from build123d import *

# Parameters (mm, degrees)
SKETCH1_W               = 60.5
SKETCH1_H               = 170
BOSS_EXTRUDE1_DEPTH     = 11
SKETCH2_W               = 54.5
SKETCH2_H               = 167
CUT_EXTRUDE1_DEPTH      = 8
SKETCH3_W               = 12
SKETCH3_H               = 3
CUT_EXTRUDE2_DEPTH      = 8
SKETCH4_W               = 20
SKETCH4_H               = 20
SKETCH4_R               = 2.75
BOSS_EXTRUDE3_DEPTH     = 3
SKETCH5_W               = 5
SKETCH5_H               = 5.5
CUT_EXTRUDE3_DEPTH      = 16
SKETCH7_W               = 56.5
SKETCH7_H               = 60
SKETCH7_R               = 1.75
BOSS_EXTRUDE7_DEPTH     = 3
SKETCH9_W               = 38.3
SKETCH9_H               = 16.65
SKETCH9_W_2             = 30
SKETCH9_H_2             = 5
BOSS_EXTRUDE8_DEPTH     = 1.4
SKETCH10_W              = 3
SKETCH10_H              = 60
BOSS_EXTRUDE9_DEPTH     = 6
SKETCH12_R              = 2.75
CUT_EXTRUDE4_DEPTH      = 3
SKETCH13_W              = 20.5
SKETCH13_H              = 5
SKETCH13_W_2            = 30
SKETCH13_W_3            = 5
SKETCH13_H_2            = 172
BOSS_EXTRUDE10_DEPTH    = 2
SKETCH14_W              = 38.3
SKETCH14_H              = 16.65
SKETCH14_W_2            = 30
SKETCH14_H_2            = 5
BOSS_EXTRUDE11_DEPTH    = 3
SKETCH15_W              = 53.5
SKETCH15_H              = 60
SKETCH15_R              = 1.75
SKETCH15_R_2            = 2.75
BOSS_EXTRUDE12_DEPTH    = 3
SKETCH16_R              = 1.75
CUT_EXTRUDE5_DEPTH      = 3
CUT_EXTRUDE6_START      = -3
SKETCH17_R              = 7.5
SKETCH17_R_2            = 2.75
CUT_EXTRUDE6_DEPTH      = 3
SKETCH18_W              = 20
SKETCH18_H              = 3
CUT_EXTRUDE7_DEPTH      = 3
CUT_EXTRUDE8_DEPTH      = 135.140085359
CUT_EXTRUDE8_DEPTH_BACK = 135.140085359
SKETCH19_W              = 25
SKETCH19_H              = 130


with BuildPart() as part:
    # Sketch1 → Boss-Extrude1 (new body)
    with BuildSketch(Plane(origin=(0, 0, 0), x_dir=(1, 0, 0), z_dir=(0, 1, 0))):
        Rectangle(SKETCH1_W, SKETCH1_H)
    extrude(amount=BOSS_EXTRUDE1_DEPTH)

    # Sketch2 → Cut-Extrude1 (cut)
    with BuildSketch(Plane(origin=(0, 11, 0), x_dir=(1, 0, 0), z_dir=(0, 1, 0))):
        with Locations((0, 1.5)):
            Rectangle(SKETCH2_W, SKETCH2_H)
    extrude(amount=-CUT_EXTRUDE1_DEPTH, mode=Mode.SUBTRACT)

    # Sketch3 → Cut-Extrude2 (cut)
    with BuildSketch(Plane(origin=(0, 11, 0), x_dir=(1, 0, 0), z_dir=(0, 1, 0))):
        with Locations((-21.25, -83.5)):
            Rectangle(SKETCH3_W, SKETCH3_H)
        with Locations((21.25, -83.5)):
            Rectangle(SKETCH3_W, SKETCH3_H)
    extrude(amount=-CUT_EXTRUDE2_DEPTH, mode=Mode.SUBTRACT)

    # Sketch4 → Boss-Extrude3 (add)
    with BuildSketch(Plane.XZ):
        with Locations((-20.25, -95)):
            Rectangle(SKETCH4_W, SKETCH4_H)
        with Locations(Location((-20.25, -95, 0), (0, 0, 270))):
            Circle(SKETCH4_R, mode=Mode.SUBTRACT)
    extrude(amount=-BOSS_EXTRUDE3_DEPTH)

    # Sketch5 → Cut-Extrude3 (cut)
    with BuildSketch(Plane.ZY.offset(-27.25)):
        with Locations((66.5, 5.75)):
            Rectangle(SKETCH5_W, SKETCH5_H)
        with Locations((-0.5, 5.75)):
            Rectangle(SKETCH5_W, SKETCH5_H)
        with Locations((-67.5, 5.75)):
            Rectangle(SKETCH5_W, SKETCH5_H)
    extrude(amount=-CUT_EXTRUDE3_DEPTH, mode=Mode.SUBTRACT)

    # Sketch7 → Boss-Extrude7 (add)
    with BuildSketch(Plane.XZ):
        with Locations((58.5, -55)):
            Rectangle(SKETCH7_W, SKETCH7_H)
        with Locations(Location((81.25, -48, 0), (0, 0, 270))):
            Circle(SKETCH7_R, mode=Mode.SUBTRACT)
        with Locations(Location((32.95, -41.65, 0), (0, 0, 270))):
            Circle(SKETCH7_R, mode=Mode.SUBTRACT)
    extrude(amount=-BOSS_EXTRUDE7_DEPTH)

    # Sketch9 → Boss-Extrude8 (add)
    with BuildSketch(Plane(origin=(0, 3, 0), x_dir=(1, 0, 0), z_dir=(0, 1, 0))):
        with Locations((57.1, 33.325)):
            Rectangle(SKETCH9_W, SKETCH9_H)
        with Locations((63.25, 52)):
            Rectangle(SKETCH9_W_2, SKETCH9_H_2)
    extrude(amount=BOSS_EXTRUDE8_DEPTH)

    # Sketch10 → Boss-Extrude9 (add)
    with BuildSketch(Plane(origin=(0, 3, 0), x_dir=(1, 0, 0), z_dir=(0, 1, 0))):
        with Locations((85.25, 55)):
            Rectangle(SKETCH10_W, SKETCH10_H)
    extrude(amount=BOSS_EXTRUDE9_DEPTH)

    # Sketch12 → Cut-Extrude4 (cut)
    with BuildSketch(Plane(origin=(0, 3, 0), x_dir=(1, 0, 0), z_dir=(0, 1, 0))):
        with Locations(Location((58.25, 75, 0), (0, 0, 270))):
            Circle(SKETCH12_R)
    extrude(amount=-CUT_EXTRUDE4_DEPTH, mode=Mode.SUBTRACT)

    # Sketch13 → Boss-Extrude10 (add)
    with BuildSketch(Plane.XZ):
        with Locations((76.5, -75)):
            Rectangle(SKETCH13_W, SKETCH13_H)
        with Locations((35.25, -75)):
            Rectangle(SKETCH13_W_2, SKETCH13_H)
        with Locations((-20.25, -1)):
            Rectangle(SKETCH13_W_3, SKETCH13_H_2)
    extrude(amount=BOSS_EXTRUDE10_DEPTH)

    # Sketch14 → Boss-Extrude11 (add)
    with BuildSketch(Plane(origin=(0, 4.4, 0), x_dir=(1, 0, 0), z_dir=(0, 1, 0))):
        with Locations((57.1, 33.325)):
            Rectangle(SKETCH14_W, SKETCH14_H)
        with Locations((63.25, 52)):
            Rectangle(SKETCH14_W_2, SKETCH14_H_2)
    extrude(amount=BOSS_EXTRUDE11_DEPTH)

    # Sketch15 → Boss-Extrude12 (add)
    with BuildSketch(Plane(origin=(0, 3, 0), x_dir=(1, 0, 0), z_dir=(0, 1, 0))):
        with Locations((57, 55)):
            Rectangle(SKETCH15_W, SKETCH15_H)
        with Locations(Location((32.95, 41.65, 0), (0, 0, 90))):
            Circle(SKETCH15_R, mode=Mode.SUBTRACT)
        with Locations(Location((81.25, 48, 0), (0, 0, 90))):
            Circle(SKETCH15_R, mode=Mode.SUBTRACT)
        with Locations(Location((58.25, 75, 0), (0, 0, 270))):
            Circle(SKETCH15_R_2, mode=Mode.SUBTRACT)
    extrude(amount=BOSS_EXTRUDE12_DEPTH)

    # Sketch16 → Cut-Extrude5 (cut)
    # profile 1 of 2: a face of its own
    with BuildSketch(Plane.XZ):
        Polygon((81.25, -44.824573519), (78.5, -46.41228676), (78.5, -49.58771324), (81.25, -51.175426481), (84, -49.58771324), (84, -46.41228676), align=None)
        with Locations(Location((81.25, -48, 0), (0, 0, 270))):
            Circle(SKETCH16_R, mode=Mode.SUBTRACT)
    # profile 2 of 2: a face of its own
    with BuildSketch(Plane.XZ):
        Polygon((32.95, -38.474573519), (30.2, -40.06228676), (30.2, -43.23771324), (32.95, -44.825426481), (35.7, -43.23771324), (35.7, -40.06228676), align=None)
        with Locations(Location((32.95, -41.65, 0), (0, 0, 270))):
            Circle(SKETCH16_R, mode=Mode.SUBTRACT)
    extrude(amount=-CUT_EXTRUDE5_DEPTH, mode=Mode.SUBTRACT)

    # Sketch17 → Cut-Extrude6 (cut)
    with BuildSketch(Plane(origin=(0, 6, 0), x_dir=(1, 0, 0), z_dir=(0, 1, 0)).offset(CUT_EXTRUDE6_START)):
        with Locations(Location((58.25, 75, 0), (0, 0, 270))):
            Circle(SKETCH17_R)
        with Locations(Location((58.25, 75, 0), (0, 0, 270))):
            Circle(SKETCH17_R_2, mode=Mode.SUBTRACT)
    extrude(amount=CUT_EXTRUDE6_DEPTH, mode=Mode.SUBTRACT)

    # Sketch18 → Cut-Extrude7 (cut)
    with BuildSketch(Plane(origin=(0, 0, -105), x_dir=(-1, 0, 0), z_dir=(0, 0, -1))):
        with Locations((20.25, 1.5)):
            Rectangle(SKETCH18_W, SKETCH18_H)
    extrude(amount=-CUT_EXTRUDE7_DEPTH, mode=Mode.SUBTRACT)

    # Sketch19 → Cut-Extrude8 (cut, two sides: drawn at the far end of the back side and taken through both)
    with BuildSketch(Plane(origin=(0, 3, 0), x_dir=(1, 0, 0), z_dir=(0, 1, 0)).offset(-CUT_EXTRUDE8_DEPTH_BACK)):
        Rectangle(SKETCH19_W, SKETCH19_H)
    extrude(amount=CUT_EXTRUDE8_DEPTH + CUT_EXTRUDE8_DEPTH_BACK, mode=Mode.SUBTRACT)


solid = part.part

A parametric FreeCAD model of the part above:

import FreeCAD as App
import Part
import Sketcher
Q = App.Units.Quantity


def add_polygon(sketch, points):
    """Adds a closed chain of lines whose ends are joined by coincident constraints."""
    first, n = sketch.GeometryCount, len(points)
    for a, b in zip(points, points[1:] + points[:1]):
        sketch.addGeometry(Part.LineSegment(App.Vector(*a, 0), App.Vector(*b, 0)), False)
    for i in range(n):
        sketch.addConstraint(Sketcher.Constraint("Coincident", first + i, 2, first + (i + 1) % n, 1))

doc = App.newDocument("Part")
body = doc.addObject("PartDesign::Body", "Body")

# Sketch on XZ plane
sketch1 = body.newObject("Sketcher::SketchObject", "Sketch")
sketch1.AttachmentSupport = (doc.getObject("XZ_Plane"), [""])
sketch1.MapMode = "FlatFace"
add_polygon(sketch1, [(-30, -85), (-30, 85), (30, 85), (30, -85)])  # lines 0-3
sketch1.addConstraint([
    Sketcher.Constraint("Vertical", 0),
    Sketcher.Constraint("Horizontal", 1),
    Sketcher.Constraint("Vertical", 2),
    Sketcher.Constraint("Horizontal", 3),
    Sketcher.Constraint("Symmetric", 0, 2, 2, 2, -1, 1),
    Sketcher.Constraint("DistanceY", 0, 1, 0, 2, Q("170 mm")),
    Sketcher.Constraint("DistanceX", 1, 1, 1, 2, Q("60.5 mm")),
])
pad1 = body.newObject("PartDesign::Pad", "Pad")
pad1.Profile = sketch1
pad1.Length = 11
pad1.Reversed = True

# Sketch on XZ plane
sketch2 = body.newObject("Sketcher::SketchObject", "Sketch001")
sketch2.AttachmentSupport = (doc.getObject("XZ_Plane"), [""])
sketch2.MapMode = "FlatFace"
sketch2.AttachmentOffset = App.Placement(App.Vector(0, 0, -11), App.Rotation())
add_polygon(sketch2, [(-27, -85), (-27, 82), (27, 82), (27, -85)])  # lines 0-3
sketch2.addConstraint([
    Sketcher.Constraint("Vertical", 0),
    Sketcher.Constraint("Horizontal", 1),
    Sketcher.Constraint("Vertical", 2),
    Sketcher.Constraint("Horizontal", 3),
    Sketcher.Constraint("DistanceY", 0, 1, 0, 2, Q("167 mm")),
    Sketcher.Constraint("DistanceX", 1, 1, 1, 2, Q("54.5 mm")),
    Sketcher.Constraint("DistanceY", -1, 1, 0, 2, Q("82 mm")),
    Sketcher.Constraint("DistanceX", 0, 2, -1, 1, Q("27.25 mm")),
])
pocket1 = body.newObject("PartDesign::Pocket", "Pocket")
pocket1.Profile = sketch2
pocket1.Length = 8
pocket1.Reversed = True

# Sketch on XZ plane
sketch3 = body.newObject("Sketcher::SketchObject", "Sketch002")
sketch3.AttachmentSupport = (doc.getObject("XZ_Plane"), [""])
sketch3.MapMode = "FlatFace"
sketch3.AttachmentOffset = App.Placement(App.Vector(0, 0, -11), App.Rotation())
add_polygon(sketch3, [(-27.2, 82), (-27.2, 85), (-15.2, 85), (-15.2, 82)])  # lines 0-3
add_polygon(sketch3, [(15.2, 82), (15.2, 85), (27.2, 85), (27.2, 82)])  # lines 4-7
sketch3.addConstraint([
    Sketcher.Constraint("Vertical", 0),
    Sketcher.Constraint("Horizontal", 1),
    Sketcher.Constraint("Vertical", 2),
    Sketcher.Constraint("Horizontal", 3),
    Sketcher.Constraint("Vertical", 4),
    Sketcher.Constraint("Horizontal", 5),
    Sketcher.Constraint("Vertical", 6),
    Sketcher.Constraint("Horizontal", 7),
    Sketcher.Constraint("Symmetric", 1, 2, 4, 2, -2),
    Sketcher.Constraint("Symmetric", 3, 2, 6, 2, -2),
    Sketcher.Constraint("DistanceX", 1, 1, 1, 2, Q("12 mm")),
    Sketcher.Constraint("DistanceY", 0, 1, 0, 2, Q("3 mm")),
    Sketcher.Constraint("DistanceY", -1, 1, 0, 2, Q("85 mm")),
    Sketcher.Constraint("DistanceX", 1, 2, 4, 2, Q("30.5 mm")),
])
pocket2 = body.newObject("PartDesign::Pocket", "Pocket001")
pocket2.Profile = sketch3
pocket2.Length = 8
pocket2.Reversed = True

# Sketch on XZ plane
sketch4 = body.newObject("Sketcher::SketchObject", "Sketch003")
sketch4.AttachmentSupport = (doc.getObject("XZ_Plane"), [""])
sketch4.MapMode = "FlatFace"
add_polygon(sketch4, [(-30.2, -85), (-30.2, -105), (-10.2, -105), (-10.2, -85)])  # lines 0-3
sketch4.addGeometry(Part.Circle(App.Vector(-20.2, -95, 0), App.Vector(0, 0, 1), 2.8), False)  # 4
sketch4.addConstraint([
    Sketcher.Constraint("Vertical", 0),
    Sketcher.Constraint("Horizontal", 1),
    Sketcher.Constraint("Vertical", 2),
    Sketcher.Constraint("Horizontal", 3),
    Sketcher.Constraint("Equal", 3, 0),
    Sketcher.Constraint("Diameter", 4, Q("5.5 mm")),
    Sketcher.Constraint("DistanceX", 1, 1, 1, 2, Q("20 mm")),
    Sketcher.Constraint("DistanceY", 4, 3, -1, 1, Q("95 mm")),
    Sketcher.Constraint("DistanceY", 0, 2, -1, 1, Q("105 mm")),
    Sketcher.Constraint("DistanceX", 0, 2, 4, 3, Q("10 mm")),
    Sketcher.Constraint("DistanceX", 4, 3, -1, 1, Q("20.25 mm")),
])
pad2 = body.newObject("PartDesign::Pad", "Pad001")
pad2.Profile = sketch4
pad2.Length = 3
pad2.Reversed = True

# Sketch on YZ plane
sketch5 = body.newObject("Sketcher::SketchObject", "Sketch004")
sketch5.AttachmentSupport = (doc.getObject("YZ_Plane"), [""])
sketch5.MapMode = "FlatFace"
sketch5.AttachmentOffset = App.Placement(App.Vector(0, 0, 27.25), App.Rotation())
add_polygon(sketch5, [(8, 64), (3, 64), (3, 69), (8, 69)])  # lines 0-3
add_polygon(sketch5, [(8, -3), (3, -3), (3, 2), (8, 2)])  # lines 4-7
add_polygon(sketch5, [(8, -70), (3, -70), (3, -65), (8, -65)])  # lines 8-11
sketch5.addConstraint([
    Sketcher.Constraint("Horizontal", 0),
    Sketcher.Constraint("Vertical", 1),
    Sketcher.Constraint("Horizontal", 2),
    Sketcher.Constraint("Vertical", 3),
    Sketcher.Constraint("Horizontal", 4),
    Sketcher.Constraint("Vertical", 5),
    Sketcher.Constraint("Horizontal", 6),
    Sketcher.Constraint("Vertical", 7),
    Sketcher.Constraint("Horizontal", 8),
    Sketcher.Constraint("Vertical", 9),
    Sketcher.Constraint("Horizontal", 10),
    Sketcher.Constraint("Vertical", 11),
    Sketcher.Constraint("Vertical", 1, 2, 4, 2),
    Sketcher.Constraint("Vertical", 3, 2, 6, 2),
    Sketcher.Constraint("Vertical", 5, 2, 8, 2),
    Sketcher.Constraint("Vertical", 7, 2, 10, 2),
    Sketcher.Constraint("Equal", 3, 5),
    Sketcher.Constraint("Equal", 7, 9),
    Sketcher.Constraint("DistanceY", 1, 1, 1, 2, Q("5 mm")),
    Sketcher.Constraint("DistanceX", 0, 2, 0, 1, Q("5.5 mm")),
    Sketcher.Constraint("DistanceX", -1, 1, 0, 2, Q("3 mm")),
    Sketcher.Constraint("DistanceY", -1, 1, 0, 2, Q("64 mm")),
    Sketcher.Constraint("DistanceY", 4, 2, -1, 1, Q("3 mm")),
    Sketcher.Constraint("DistanceY", 8, 2, -1, 1, Q("70 mm")),
])
pocket3 = body.newObject("PartDesign::Pocket", "Pocket002")
pocket3.Profile = sketch5
pocket3.Length = 16
pocket3.Reversed = True

# Sketch on XZ plane
sketch6 = body.newObject("Sketcher::SketchObject", "Sketch005")
sketch6.AttachmentSupport = (doc.getObject("XZ_Plane"), [""])
sketch6.MapMode = "FlatFace"
add_polygon(sketch6, [(30.2, -25), (30.2, -85), (86.8, -85), (86.8, -25)])  # lines 0-3
sketch6.addGeometry(Part.Circle(App.Vector(81.2, -48, 0), App.Vector(0, 0, 1), 1.8), False)  # 4
sketch6.addGeometry(Part.Circle(App.Vector(33, -41.6, 0), App.Vector(0, 0, 1), 1.8), False)  # 5
sketch6.addConstraint([
    Sketcher.Constraint("Vertical", 0),
    Sketcher.Constraint("Horizontal", 1),
    Sketcher.Constraint("Vertical", 2),
    Sketcher.Constraint("Horizontal", 3),
    Sketcher.Constraint("Equal", 4, 5),
    Sketcher.Constraint("Diameter", 4, Q("3.5 mm")),
    Sketcher.Constraint("DistanceY", 0, 2, 0, 1, Q("60 mm")),
    Sketcher.Constraint("DistanceX", 1, 1, 1, 2, Q("56.5 mm")),
    Sketcher.Constraint("DistanceY", 4, 3, -1, 1, Q("48 mm")),
    Sketcher.Constraint("DistanceY", 0, 2, -1, 1, Q("85 mm")),
    Sketcher.Constraint("DistanceX", 0, 2, 4, 3, Q("51 mm")),
    Sketcher.Constraint("DistanceX", 5, 3, 4, 3, Q("48.3 mm")),
    Sketcher.Constraint("DistanceX", -1, 1, 4, 3, Q("81.25 mm")),
    Sketcher.Constraint("DistanceY", 5, 3, -1, 1, Q("41.65 mm")),
])
pad3 = body.newObject("PartDesign::Pad", "Pad002")
pad3.Profile = sketch6
pad3.Length = 3
pad3.Reversed = True

# Sketch on XZ plane
sketch7 = body.newObject("Sketcher::SketchObject", "Sketch006")
sketch7.AttachmentSupport = (doc.getObject("XZ_Plane"), [""])
sketch7.MapMode = "FlatFace"
sketch7.AttachmentOffset = App.Placement(App.Vector(0, 0, -3), App.Rotation())
add_polygon(sketch7, [(38, -42), (38, -25), (76, -25), (76, -42)])  # lines 0-3
add_polygon(sketch7, [(48, -54), (48, -50), (78, -50), (78, -54)])  # lines 4-7
sketch7.addConstraint([
    Sketcher.Constraint("Vertical", 0),
    Sketcher.Constraint("Horizontal", 1),
    Sketcher.Constraint("Vertical", 2),
    Sketcher.Constraint("Horizontal", 3),
    Sketcher.Constraint("Vertical", 4),
    Sketcher.Constraint("Horizontal", 5),
    Sketcher.Constraint("Vertical", 6),
    Sketcher.Constraint("Horizontal", 7),
    Sketcher.Constraint("DistanceX", 5, 1, 5, 2, Q("30 mm")),
    Sketcher.Constraint("DistanceY", 4, 1, 4, 2, Q("5 mm")),
    Sketcher.Constraint("DistanceX", 1, 1, 1, 2, Q("38.3 mm")),
    Sketcher.Constraint("DistanceY", 0, 2, -1, 1, Q("25 mm")),
    Sketcher.Constraint("DistanceX", 4, 2, 2, 2, Q("28 mm")),
    Sketcher.Constraint("DistanceY", 0, 1, 0, 2, Q("16.65 mm")),
    Sketcher.Constraint("DistanceY", 4, 2, -1, 1, Q("49.5 mm")),
    Sketcher.Constraint("DistanceX", -1, 1, 0, 2, Q("37.95 mm")),
])
pad4 = body.newObject("PartDesign::Pad", "Pad003")
pad4.Profile = sketch7
pad4.Length = 1.4
pad4.Reversed = True

# Sketch on XZ plane
sketch8 = body.newObject("Sketcher::SketchObject", "Sketch007")
sketch8.AttachmentSupport = (doc.getObject("XZ_Plane"), [""])
sketch8.MapMode = "FlatFace"
sketch8.AttachmentOffset = App.Placement(App.Vector(0, 0, -3), App.Rotation())
add_polygon(sketch8, [(83.8, -85), (83.8, -25), (86.8, -25), (86.8, -85)])  # lines 0-3
sketch8.addConstraint([
    Sketcher.Constraint("Vertical", 0),
    Sketcher.Constraint("Horizontal", 1),
    Sketcher.Constraint("Vertical", 2),
    Sketcher.Constraint("Horizontal", 3),
    Sketcher.Constraint("DistanceX", 1, 1, 1, 2, Q("3 mm")),
    Sketcher.Constraint("DistanceY", 0, 1, 0, 2, Q("60 mm")),
    Sketcher.Constraint("DistanceY", 0, 2, -1, 1, Q("25 mm")),
    Sketcher.Constraint("DistanceX", -1, 1, 0, 2, Q("83.75 mm")),
])
pad5 = body.newObject("PartDesign::Pad", "Pad004")
pad5.Profile = sketch8
pad5.Length = 6
pad5.Reversed = True

# Sketch on XZ plane
sketch9 = body.newObject("Sketcher::SketchObject", "Sketch008")
sketch9.AttachmentSupport = (doc.getObject("XZ_Plane"), [""])
sketch9.MapMode = "FlatFace"
sketch9.AttachmentOffset = App.Placement(App.Vector(0, 0, -3), App.Rotation())
sketch9.addGeometry(Part.Circle(App.Vector(58.2, -75, 0), App.Vector(0, 0, 1), 2.8), False)
sketch9.addConstraint([
    Sketcher.Constraint("Diameter", 0, Q("5.5 mm")),
    Sketcher.Constraint("DistanceY", 0, 3, -1, 1, Q("75 mm")),
    Sketcher.Constraint("DistanceX", -1, 1, 0, 3, Q("58.25 mm")),
])
pocket4 = body.newObject("PartDesign::Pocket", "Pocket003")
pocket4.Profile = sketch9
pocket4.Length = 3
pocket4.Reversed = True

# Sketch on XZ plane
sketch10 = body.newObject("Sketcher::SketchObject", "Sketch009")
sketch10.AttachmentSupport = (doc.getObject("XZ_Plane"), [""])
sketch10.MapMode = "FlatFace"
add_polygon(sketch10, [(66, -72), (66, -78), (87, -78), (87, -72)])  # lines 0-3
add_polygon(sketch10, [(20, -72), (20, -78), (50, -78), (50, -72)])  # lines 4-7
add_polygon(sketch10, [(-23, 85), (-23, -87), (-18, -87), (-18, 85)])  # lines 8-11
sketch10.addConstraint([
    Sketcher.Constraint("Vertical", 0),
    Sketcher.Constraint("Horizontal", 1),
    Sketcher.Constraint("Vertical", 2),
    Sketcher.Constraint("Horizontal", 3),
    Sketcher.Constraint("Vertical", 4),
    Sketcher.Constraint("Horizontal", 5),
    Sketcher.Constraint("Vertical", 6),
    Sketcher.Constraint("Horizontal", 7),
    Sketcher.Constraint("Vertical", 8),
    Sketcher.Constraint("Horizontal", 9),
    Sketcher.Constraint("Vertical", 10),
    Sketcher.Constraint("Horizontal", 11),
    Sketcher.Constraint("Horizontal", 1, 2, 4, 2),
    Sketcher.Constraint("Horizontal", 3, 2, 6, 2),
    Sketcher.Constraint("Equal", 11, 0),
    Sketcher.Constraint("DistanceX", 5, 1, 5, 2, Q("30 mm")),
    Sketcher.Constraint("DistanceX", 9, 1, 9, 2, Q("5 mm")),
    Sketcher.Constraint("DistanceY", 8, 2, 8, 1, Q("172 mm")),
    Sketcher.Constraint("DistanceX", 1, 1, 1, 2, Q("20.5 mm")),
    Sketcher.Constraint("DistanceY", 8, 2, -1, 1, Q("87 mm")),
    Sketcher.Constraint("DistanceX", 4, 2, 0, 2, Q("46 mm")),
    Sketcher.Constraint("DistanceX", 8, 2, 4, 2, Q("43 mm")),
    Sketcher.Constraint("DistanceY", 0, 2, -1, 1, Q("77.5 mm")),
    Sketcher.Constraint("DistanceX", -1, 1, 0, 2, Q("66.25 mm")),
])
pad6 = body.newObject("PartDesign::Pad", "Pad005")
pad6.Profile = sketch10
pad6.Length = 2

# Sketch on XZ plane
sketch11 = body.newObject("Sketcher::SketchObject", "Sketch010")
sketch11.AttachmentSupport = (doc.getObject("XZ_Plane"), [""])
sketch11.MapMode = "FlatFace"
sketch11.AttachmentOffset = App.Placement(App.Vector(0, 0, -4.4), App.Rotation())
add_polygon(sketch11, [(38, -42), (38, -25), (76, -25), (76, -42)])  # lines 0-3
add_polygon(sketch11, [(48, -54), (48, -50), (78, -50), (78, -54)])  # lines 4-7
sketch11.addConstraint([
    Sketcher.Constraint("Vertical", 0),
    Sketcher.Constraint("Horizontal", 1),
    Sketcher.Constraint("Vertical", 2),
    Sketcher.Constraint("Horizontal", 3),
    Sketcher.Constraint("Vertical", 4),
    Sketcher.Constraint("Horizontal", 5),
    Sketcher.Constraint("Vertical", 6),
    Sketcher.Constraint("Horizontal", 7),
    Sketcher.Constraint("DistanceX", 5, 1, 5, 2, Q("30 mm")),
    Sketcher.Constraint("DistanceY", 4, 1, 4, 2, Q("5 mm")),
    Sketcher.Constraint("DistanceX", 1, 1, 1, 2, Q("38.3 mm")),
    Sketcher.Constraint("DistanceY", 0, 2, -1, 1, Q("25 mm")),
    Sketcher.Constraint("DistanceX", 4, 2, 2, 2, Q("28 mm")),
    Sketcher.Constraint("DistanceY", 0, 1, 0, 2, Q("16.65 mm")),
    Sketcher.Constraint("DistanceY", 4, 2, -1, 1, Q("49.5 mm")),
    Sketcher.Constraint("DistanceX", -1, 1, 0, 2, Q("37.95 mm")),
])
pad7 = body.newObject("PartDesign::Pad", "Pad006")
pad7.Profile = sketch11
pad7.Length = 3
pad7.Reversed = True

# Sketch on XZ plane
sketch12 = body.newObject("Sketcher::SketchObject", "Sketch011")
sketch12.AttachmentSupport = (doc.getObject("XZ_Plane"), [""])
sketch12.MapMode = "FlatFace"
sketch12.AttachmentOffset = App.Placement(App.Vector(0, 0, -3), App.Rotation())
add_polygon(sketch12, [(30.2, -85), (30.2, -25), (83.8, -25), (83.8, -85)])  # lines 0-3
sketch12.addGeometry(Part.Circle(App.Vector(33, -41.6, 0), App.Vector(0, 0, 1), 1.8), False)  # 4
sketch12.addGeometry(Part.Circle(App.Vector(81.2, -48, 0), App.Vector(0, 0, 1), 1.8), False)  # 5
sketch12.addGeometry(Part.Circle(App.Vector(58.2, -75, 0), App.Vector(0, 0, 1), 2.8), False)  # 6
sketch12.addConstraint([
    Sketcher.Constraint("Vertical", 0),
    Sketcher.Constraint("Horizontal", 1),
    Sketcher.Constraint("Vertical", 2),
    Sketcher.Constraint("Horizontal", 3),
    Sketcher.Constraint("Equal", 4, 5),
    Sketcher.Constraint("Diameter", 4, Q("3.5 mm")),
    Sketcher.Constraint("Diameter", 6, Q("5.5 mm")),
    Sketcher.Constraint("DistanceY", 0, 1, 0, 2, Q("60 mm")),
    Sketcher.Constraint("DistanceX", 1, 1, 1, 2, Q("53.5 mm")),
    Sketcher.Constraint("DistanceY", 5, 3, -1, 1, Q("48 mm")),
    Sketcher.Constraint("DistanceY", 6, 3, -1, 1, Q("75 mm")),
    Sketcher.Constraint("DistanceY", 0, 2, -1, 1, Q("25 mm")),
    Sketcher.Constraint("DistanceX", 6, 3, 5, 3, Q("23 mm")),
    Sketcher.Constraint("DistanceX", 0, 2, 5, 3, Q("51 mm")),
    Sketcher.Constraint("DistanceX", 4, 3, 5, 3, Q("48.3 mm")),
    Sketcher.Constraint("DistanceX", -1, 1, 4, 3, Q("32.95 mm")),
    Sketcher.Constraint("DistanceY", 4, 3, -1, 1, Q("41.65 mm")),
])
pad8 = body.newObject("PartDesign::Pad", "Pad007")
pad8.Profile = sketch12
pad8.Length = 3
pad8.Reversed = True

# Sketch on XZ plane
sketch13 = body.newObject("Sketcher::SketchObject", "Sketch012")
sketch13.AttachmentSupport = (doc.getObject("XZ_Plane"), [""])
sketch13.MapMode = "FlatFace"
add_polygon(sketch13, [(81.2, -44.8), (78.5, -46.4), (78.5, -49.6), (81.2, -51.2), (84, -49.6), (84, -46.4)])  # lines 0-5
sketch13.addGeometry(Part.Circle(App.Vector(81.2, -48, 0), App.Vector(0, 0, 1), 1.8), False)  # 6
add_polygon(sketch13, [(33, -38.5), (30.2, -40.1), (30.2, -43.2), (33, -44.8), (35.7, -43.2), (35.7, -40.1)])  # lines 7-12
sketch13.addGeometry(Part.Circle(App.Vector(33, -41.6, 0), App.Vector(0, 0, 1), 1.8), False)  # 13
sketch13.addConstraint([
    Sketcher.Constraint("Vertical", 1),
    Sketcher.Constraint("Vertical", 4),
    Sketcher.Constraint("Vertical", 8),
    Sketcher.Constraint("Vertical", 11),
    Sketcher.Constraint("Equal", 6, 13),
    Sketcher.Constraint("Parallel", 0, 3),
    Sketcher.Constraint("Parallel", 2, 5),
    Sketcher.Constraint("Parallel", 3, 7),
    Sketcher.Constraint("Parallel", 5, 9),
    Sketcher.Constraint("Parallel", 7, 10),
    Sketcher.Constraint("Parallel", 9, 12),
    Sketcher.Constraint("Horizontal", 1, 2, 3, 2),
    Sketcher.Constraint("Horizontal", 0, 2, 4, 2),
    Sketcher.Constraint("Horizontal", 8, 2, 10, 2),
    Sketcher.Constraint("Horizontal", 7, 2, 11, 2),
    Sketcher.Constraint("Vertical", 6, 3, 2, 2),
    Sketcher.Constraint("Vertical", 2, 2, 5, 2),
    Sketcher.Constraint("Vertical", 13, 3, 9, 2),
    Sketcher.Constraint("Equal", 4, 8),
    Sketcher.Constraint("Equal", 5, 7),
    Sketcher.Constraint("Diameter", 6, Q("3.5 mm")),
    Sketcher.Constraint("Angle", 0, Q("-150 deg")),
    Sketcher.Constraint("DistanceY", 6, 3, -1, 1, Q("48 mm")),
    Sketcher.Constraint("DistanceX", -1, 1, 3, 2, Q("84 mm")),
    Sketcher.Constraint("DistanceX", -1, 1, 0, 2, Q("78.5 mm")),
    Sketcher.Constraint("DistanceX", -1, 1, 7, 2, Q("30.2 mm")),
    Sketcher.Constraint("DistanceY", 13, 3, -1, 1, Q("41.65 mm")),
    Sketcher.Constraint("DistanceY", 0, 2, 7, 2, Q("6.35 mm")),
    Sketcher.Constraint("DistanceY", 1, 2, 1, 1, Q("3.175426 mm")),
    Sketcher.Constraint("DistanceY", 0, 2, -1, 1, Q("46.412287 mm")),
])
pocket5 = body.newObject("PartDesign::Pocket", "Pocket004")
pocket5.Profile = sketch13
pocket5.Length = 3

# Sketch on XZ plane
sketch14 = body.newObject("Sketcher::SketchObject", "Sketch013")
sketch14.AttachmentSupport = (doc.getObject("XZ_Plane"), [""])
sketch14.MapMode = "FlatFace"
sketch14.AttachmentOffset = App.Placement(App.Vector(0, 0, -3), App.Rotation())
sketch14.addGeometry([
    Part.Circle(App.Vector(58.2, -75, 0), App.Vector(0, 0, 1), 7.5),
    Part.Circle(App.Vector(58.2, -75, 0), App.Vector(0, 0, 1), 2.8),
], False)
sketch14.addConstraint([
    Sketcher.Constraint("Coincident", 1, 3, 0, 3),
    Sketcher.Constraint("Diameter", 0, Q("15 mm")),
    Sketcher.Constraint("Diameter", 1, Q("5.5 mm")),
    Sketcher.Constraint("DistanceY", 0, 3, -1, 1, Q("75 mm")),
    Sketcher.Constraint("DistanceX", -1, 1, 0, 3, Q("58.25 mm")),
])
pocket6 = body.newObject("PartDesign::Pocket", "Pocket005")
pocket6.Profile = sketch14
pocket6.Length = 3

# Sketch on XY plane
sketch15 = body.newObject("Sketcher::SketchObject", "Sketch014")
sketch15.AttachmentSupport = (doc.getObject("XY_Plane"), [""])
sketch15.MapMode = "FlatFace"
sketch15.AttachmentOffset = App.Placement(App.Vector(0, 0, -105), App.Rotation())
add_polygon(sketch15, [(-10.2, 3), (-10.2, 0), (-30.2, 0), (-30.2, 3)])  # lines 0-3
sketch15.addConstraint([
    Sketcher.Constraint("Vertical", 0),
    Sketcher.Constraint("Horizontal", 1),
    Sketcher.Constraint("Vertical", 2),
    Sketcher.Constraint("Horizontal", 3),
    Sketcher.Constraint("PointOnObject", 0, 2, -1),
    Sketcher.Constraint("DistanceX", 1, 2, 1, 1, Q("20 mm")),
    Sketcher.Constraint("DistanceY", 0, 2, 0, 1, Q("3 mm")),
    Sketcher.Constraint("DistanceX", 0, 2, -1, 1, Q("10.25 mm")),
])
pocket7 = body.newObject("PartDesign::Pocket", "Pocket006")
pocket7.Profile = sketch15
pocket7.Length = 3
pocket7.Reversed = True

# Sketch on XZ plane
sketch16 = body.newObject("Sketcher::SketchObject", "Sketch015")
sketch16.AttachmentSupport = (doc.getObject("XZ_Plane"), [""])
sketch16.MapMode = "FlatFace"
sketch16.AttachmentOffset = App.Placement(App.Vector(0, 0, -3), App.Rotation())
add_polygon(sketch16, [(-12, -65), (-12, 65), (12, 65), (12, -65)])  # lines 0-3
sketch16.addConstraint([
    Sketcher.Constraint("Vertical", 0),
    Sketcher.Constraint("Horizontal", 1),
    Sketcher.Constraint("Vertical", 2),
    Sketcher.Constraint("Horizontal", 3),
    Sketcher.Constraint("Symmetric", 0, 2, 2, 2, -1, 1),
    Sketcher.Constraint("DistanceX", 1, 1, 1, 2, Q("25 mm")),
    Sketcher.Constraint("DistanceY", 0, 1, 0, 2, Q("130 mm")),
])
pocket8 = body.newObject("PartDesign::Pocket", "Pocket007")
pocket8.Profile = sketch16
pocket8.Type = "ThroughAll"
pocket8.Midplane = True

doc.recompute()
